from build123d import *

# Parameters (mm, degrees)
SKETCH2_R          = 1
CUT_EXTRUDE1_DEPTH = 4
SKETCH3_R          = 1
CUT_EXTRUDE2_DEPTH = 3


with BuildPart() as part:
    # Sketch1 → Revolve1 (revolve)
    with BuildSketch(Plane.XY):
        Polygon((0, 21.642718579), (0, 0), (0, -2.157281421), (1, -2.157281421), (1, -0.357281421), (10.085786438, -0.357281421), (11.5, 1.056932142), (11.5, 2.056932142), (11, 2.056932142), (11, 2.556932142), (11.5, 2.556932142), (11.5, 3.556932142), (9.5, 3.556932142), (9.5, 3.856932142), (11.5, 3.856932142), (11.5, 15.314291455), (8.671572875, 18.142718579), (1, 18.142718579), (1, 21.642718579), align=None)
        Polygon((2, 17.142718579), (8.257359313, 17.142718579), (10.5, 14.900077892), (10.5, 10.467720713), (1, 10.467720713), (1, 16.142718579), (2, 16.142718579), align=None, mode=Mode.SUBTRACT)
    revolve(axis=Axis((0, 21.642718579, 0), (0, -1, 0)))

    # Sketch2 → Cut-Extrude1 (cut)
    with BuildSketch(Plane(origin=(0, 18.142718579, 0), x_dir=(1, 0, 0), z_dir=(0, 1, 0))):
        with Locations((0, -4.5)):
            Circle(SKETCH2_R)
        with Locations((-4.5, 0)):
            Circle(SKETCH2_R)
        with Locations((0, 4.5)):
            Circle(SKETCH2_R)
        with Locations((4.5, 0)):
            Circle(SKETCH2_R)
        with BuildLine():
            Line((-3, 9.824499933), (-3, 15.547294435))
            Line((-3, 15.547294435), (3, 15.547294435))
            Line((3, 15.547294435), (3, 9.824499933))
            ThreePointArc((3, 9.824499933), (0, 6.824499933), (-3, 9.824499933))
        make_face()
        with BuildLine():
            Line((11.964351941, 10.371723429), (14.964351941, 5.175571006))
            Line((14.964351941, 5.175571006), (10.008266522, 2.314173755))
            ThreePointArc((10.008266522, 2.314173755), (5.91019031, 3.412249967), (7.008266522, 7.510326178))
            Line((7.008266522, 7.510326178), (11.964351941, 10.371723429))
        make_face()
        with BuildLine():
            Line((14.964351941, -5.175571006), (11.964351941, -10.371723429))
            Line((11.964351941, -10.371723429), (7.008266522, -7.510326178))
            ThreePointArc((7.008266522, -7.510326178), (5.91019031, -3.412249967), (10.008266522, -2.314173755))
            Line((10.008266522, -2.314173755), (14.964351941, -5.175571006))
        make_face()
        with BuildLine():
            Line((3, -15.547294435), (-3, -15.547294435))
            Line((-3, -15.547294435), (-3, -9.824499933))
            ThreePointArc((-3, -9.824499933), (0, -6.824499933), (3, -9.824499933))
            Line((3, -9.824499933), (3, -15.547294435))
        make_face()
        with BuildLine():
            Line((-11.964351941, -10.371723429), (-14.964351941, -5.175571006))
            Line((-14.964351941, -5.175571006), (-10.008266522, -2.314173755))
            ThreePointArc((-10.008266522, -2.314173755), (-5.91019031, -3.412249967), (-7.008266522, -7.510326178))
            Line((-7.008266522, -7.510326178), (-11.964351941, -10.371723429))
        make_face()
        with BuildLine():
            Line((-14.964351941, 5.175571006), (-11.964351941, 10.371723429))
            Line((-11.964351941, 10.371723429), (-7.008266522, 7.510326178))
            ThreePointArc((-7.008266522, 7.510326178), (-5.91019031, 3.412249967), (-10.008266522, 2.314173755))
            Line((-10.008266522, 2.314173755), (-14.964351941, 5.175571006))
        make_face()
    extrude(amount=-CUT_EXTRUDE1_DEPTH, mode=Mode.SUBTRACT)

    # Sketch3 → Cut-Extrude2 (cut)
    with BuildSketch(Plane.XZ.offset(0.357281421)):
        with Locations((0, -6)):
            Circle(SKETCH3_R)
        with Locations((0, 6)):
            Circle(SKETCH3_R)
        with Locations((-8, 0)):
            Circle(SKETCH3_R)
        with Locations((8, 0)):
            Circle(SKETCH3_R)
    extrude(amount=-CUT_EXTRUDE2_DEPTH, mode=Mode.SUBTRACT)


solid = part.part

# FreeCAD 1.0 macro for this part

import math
import FreeCAD as App
import Part
import Sketcher
from FreeCAD import Vector
Q = App.Units.Quantity

doc = App.newDocument("Part")
params = doc.addObject("Spreadsheet::Sheet", "Params")
for row, (alias, value) in enumerate([
    ("sketch1_width", "1 mm"),
    ("sketch1_width2", "2 mm"),
    ("sketch1_length", "2 mm"),
    ("sketch1_length2", "4 mm"),
    ("sketch1_width3", "0.5 mm"),
    ("revolution_angle", "360 deg"),
    ("sketch2_diameter", "2 mm"),
    ("sketch2_radius", "3 mm"),
    ("pocket1_length", "4 mm"),
    ("sketch3_diameter", "2 mm"),
    ("pocket2_length", "3 mm"),
], start=1):
    params.set(f"A{row}", alias)
    params.set(f"B{row}", "=" + value)
    params.setAlias(f"B{row}", alias)

body = doc.addObject("PartDesign::Body", "Body")

# Sketch on XY plane
sketch1 = body.newObject("Sketcher::SketchObject", "Sketch")
sketch1.AttachmentSupport = (doc.getObject("XY_Plane"), [""])
sketch1.MapMode = "FlatFace"
sketch1.addGeometry([
    Part.LineSegment(Vector(0, 21.64, 0), Vector(0, -2.16, 0)),  # 0
    Part.LineSegment(Vector(0, -2.16, 0), Vector(1, -2.16, 0)),  # 1
    Part.LineSegment(Vector(1, -2.16, 0), Vector(1, -0.36, 0)),  # 2
    Part.LineSegment(Vector(1, -0.36, 0), Vector(10.09, -0.36, 0)),  # 3
    Part.LineSegment(Vector(10.09, -0.36, 0), Vector(11.5, 1.06, 0)),  # 4
    Part.LineSegment(Vector(11.5, 1.06, 0), Vector(11.5, 2.06, 0)),  # 5
    Part.LineSegment(Vector(11.5, 2.06, 0), Vector(11, 2.06, 0)),  # 6
    Part.LineSegment(Vector(11, 2.06, 0), Vector(11, 2.56, 0)),  # 7
    Part.LineSegment(Vector(11, 2.56, 0), Vector(11.5, 2.56, 0)),  # 8
    Part.LineSegment(Vector(11.5, 2.56, 0), Vector(11.5, 3.56, 0)),  # 9
    Part.LineSegment(Vector(11.5, 3.56, 0), Vector(9.5, 3.56, 0)),  # 10
    Part.LineSegment(Vector(9.5, 3.56, 0), Vector(9.5, 3.86, 0)),  # 11
    Part.LineSegment(Vector(9.5, 3.86, 0), Vector(11.5, 3.86, 0)),  # 12
    Part.LineSegment(Vector(11.5, 3.86, 0), Vector(11.5, 15.31, 0)),  # 13
    Part.LineSegment(Vector(11.5, 15.31, 0), Vector(8.67, 18.14, 0)),  # 14
    Part.LineSegment(Vector(8.67, 18.14, 0), Vector(1, 18.14, 0)),  # 15
    Part.LineSegment(Vector(1, 18.14, 0), Vector(1, 21.64, 0)),  # 16
    Part.LineSegment(Vector(1, 21.64, 0), Vector(0, 21.64, 0)),  # 17
    Part.LineSegment(Vector(2, 16.14, 0), Vector(2, 17.14, 0)),  # 18
    Part.LineSegment(Vector(2, 17.14, 0), Vector(8.26, 17.14, 0)),  # 19
    Part.LineSegment(Vector(8.26, 17.14, 0), Vector(10.5, 14.9, 0)),  # 20
    Part.LineSegment(Vector(10.5, 14.9, 0), Vector(10.5, 10.47, 0)),  # 21
    Part.LineSegment(Vector(10.5, 10.47, 0), Vector(1, 10.47, 0)),  # 22
    Part.LineSegment(Vector(1, 10.47, 0), Vector(1, 16.14, 0)),  # 23
    Part.LineSegment(Vector(1, 16.14, 0), Vector(2, 16.14, 0)),  # 24
], False)
sketch1.addConstraint([
    Sketcher.Constraint("Coincident", 0, 2, 1, 1),
    Sketcher.Constraint("Coincident", 1, 2, 2, 1),
    Sketcher.Constraint("Coincident", 2, 2, 3, 1),
    Sketcher.Constraint("Coincident", 3, 2, 4, 1),
    Sketcher.Constraint("Coincident", 4, 2, 5, 1),
    Sketcher.Constraint("Coincident", 5, 2, 6, 1),
    Sketcher.Constraint("Coincident", 6, 2, 7, 1),
    Sketcher.Constraint("Coincident", 7, 2, 8, 1),
    Sketcher.Constraint("Coincident", 8, 2, 9, 1),
    Sketcher.Constraint("Coincident", 9, 2, 10, 1),
    Sketcher.Constraint("Coincident", 10, 2, 11, 1),
    Sketcher.Constraint("Coincident", 11, 2, 12, 1),
    Sketcher.Constraint("Coincident", 12, 2, 13, 1),
    Sketcher.Constraint("Coincident", 13, 2, 14, 1),
    Sketcher.Constraint("Coincident", 14, 2, 15, 1),
    Sketcher.Constraint("Coincident", 15, 2, 16, 1),
    Sketcher.Constraint("Coincident", 16, 2, 17, 1),
    Sketcher.Constraint("Coincident", 17, 2, 0, 1),
    Sketcher.Constraint("Coincident", 18, 2, 19, 1),
    Sketcher.Constraint("Coincident", 19, 2, 20, 1),
    Sketcher.Constraint("Coincident", 20, 2, 21, 1),
    Sketcher.Constraint("Coincident", 21, 2, 22, 1),
    Sketcher.Constraint("Coincident", 22, 2, 23, 1),
    Sketcher.Constraint("Coincident", 23, 2, 24, 1),
    Sketcher.Constraint("Coincident", 24, 2, 18, 1),
    Sketcher.Constraint("Vertical", 0),
    Sketcher.Constraint("Horizontal", 1),
    Sketcher.Constraint("Vertical", 2),
    Sketcher.Constraint("Horizontal", 3),
    Sketcher.Constraint("Vertical", 5),
    Sketcher.Constraint("Horizontal", 6),
    Sketcher.Constraint("Vertical", 7),
    Sketcher.Constraint("Horizontal", 8),
    Sketcher.Constraint("Vertical", 9),
    Sketcher.Constraint("Horizontal", 10),
    Sketcher.Constraint("Vertical", 11),
    Sketcher.Constraint("Horizontal", 12),
    Sketcher.Constraint("Vertical", 13),
    Sketcher.Constraint("Horizontal", 15),
    Sketcher.Constraint("Vertical", 16),
    Sketcher.Constraint("Horizontal", 17),
    Sketcher.Constraint("Vertical", 18),
    Sketcher.Constraint("Horizontal", 19),
    Sketcher.Constraint("Vertical", 21),
    Sketcher.Constraint("Horizontal", 22),
    Sketcher.Constraint("Vertical", 23),
    Sketcher.Constraint("Horizontal", 24),
    Sketcher.Constraint("PointOnObject", 0, 2, -2),
    Sketcher.Constraint("Perpendicular", 4, 14),
    Sketcher.Constraint("Parallel", 14, 20),
    Sketcher.Constraint("Vertical", 5, 2, 8, 2),
    Sketcher.Constraint("Vertical", 9, 2, 12, 2),
    Sketcher.Constraint("Vertical", 2, 2, 15, 2),
    Sketcher.Constraint("Vertical", 16, 2, 22, 2),
    Sketcher.Constraint("Equal", 17, 24),
    Sketcher.Constraint("Equal", 24, 5),
    Sketcher.Constraint("Equal", 8, 7),
    Sketcher.Constraint("Equal", 5, 9),
    Sketcher.Constraint("Equal", 9, 18),
    Sketcher.Constraint("DistanceX", 1, 1, 1, 2, Q("1 mm")),
    Sketcher.Constraint("DistanceX", 10, 2, 10, 1, Q("2 mm")),
    Sketcher.Constraint("Angle", 4, Q("45 deg")),
    Sketcher.Constraint("Distance", 4, Q("2 mm")),
    Sketcher.Constraint("Distance", 14, Q("4 mm")),
    Sketcher.Constraint("DistanceX", 6, 2, 6, 1, Q("0.5 mm")),
    Sketcher.Constraint("DistanceX", 22, 2, 22, 1, Q("9.5 mm")),
    Sketcher.Constraint("DistanceY", 0, 2, 0, 1, Q("23.8 mm")),
    Sketcher.Constraint("DistanceY", 2, 1, 2, 2, Q("1.8 mm")),
    Sketcher.Constraint("DistanceY", 11, 1, 11, 2, Q("0.3 mm")),
    Sketcher.Constraint("DistanceY", 16, 1, 16, 2, Q("3.5 mm")),
    Sketcher.Constraint("DistanceX", -1, 1, 6, 2, Q("11 mm")),
    Sketcher.Constraint("DistanceY", 18, 2, 15, 2, Q("1 mm")),
    Sketcher.Constraint("DistanceX", 19, 1, 19, 2, Q("6.257359 mm")),
    Sketcher.Constraint("DistanceY", 21, 2, 21, 1, Q("4.432357 mm")),
    Sketcher.Constraint("DistanceY", 0, 2, -1, 1, Q("2.157281 mm")),
])
sketch1.setExpression("Constraints[59]", "Params.sketch1_width")
sketch1.setExpression("Constraints[60]", "Params.sketch1_width2")
sketch1.setExpression("Constraints[62]", "Params.sketch1_length")
sketch1.setExpression("Constraints[63]", "Params.sketch1_length2")
sketch1.setExpression("Constraints[64]", "Params.sketch1_width3")
revolution = body.newObject("PartDesign::Revolution", "Revolution")
revolution.Profile = sketch1
revolution.ReferenceAxis = (sketch1, ["V_Axis"])
revolution.setExpression("Angle", "Params.revolution_angle")

# Sketch on XZ plane
sketch2 = body.newObject("Sketcher::SketchObject", "Sketch001")
sketch2.AttachmentSupport = (doc.getObject("XZ_Plane"), [""])
sketch2.MapMode = "FlatFace"
sketch2.AttachmentOffset = App.Placement(Vector(0, 0, -18.142719), App.Rotation())
sketch2.addGeometry([
    Part.Circle(Vector(0, 4.5, 0), Vector(0, 0, 1), 1),  # 0
    Part.Circle(Vector(-4.5, 0, 0), Vector(0, 0, 1), 1),  # 1
    Part.Circle(Vector(0, -4.5, 0), Vector(0, 0, 1), 1),  # 2
    Part.Circle(Vector(4.5, 0, 0), Vector(0, 0, 1), 1),  # 3
    Part.LineSegment(Vector(-3, -15.5, 0), Vector(-3, -9.8, 0)),  # 4
    Part.ArcOfCircle(Part.Circle(Vector(0, -9.8, 0), Vector(0, 0, 1), 3), math.radians(0), math.radians(180)),  # 5
    Part.LineSegment(Vector(3, -9.8, 0), Vector(3, -15.5, 0)),  # 6
    Part.LineSegment(Vector(3, -15.5, 0), Vector(-3, -15.5, 0)),  # 7
    Part.LineSegment(Vector(15, -5.2, 0), Vector(12, -10.4, 0)),  # 8
    Part.LineSegment(Vector(12, -10.4, 0), Vector(7, -7.5, 0)),  # 9
    Part.ArcOfCircle(Part.Circle(Vector(8.5, -4.9, 0), Vector(0, 0, 1), 3), math.radians(60), math.radians(240)),  # 10
    Part.LineSegment(Vector(10, -2.3, 0), Vector(15, -5.2, 0)),  # 11
    Part.LineSegment(Vector(12, 10.4, 0), Vector(15, 5.2, 0)),  # 12
    Part.LineSegment(Vector(15, 5.2, 0), Vector(10, 2.3, 0)),  # 13
    Part.ArcOfCircle(Part.Circle(Vector(8.5, 4.9, 0), Vector(0, 0, 1), 3), math.radians(120), math.radians(300)),  # 14
    Part.LineSegment(Vector(7, 7.5, 0), Vector(12, 10.4, 0)),  # 15
    Part.LineSegment(Vector(-3, 15.5, 0), Vector(3, 15.5, 0)),  # 16
    Part.LineSegment(Vector(3, 15.5, 0), Vector(3, 9.8, 0)),  # 17
    Part.ArcOfCircle(Part.Circle(Vector(0, 9.8, 0), Vector(0, 0, 1), 3), math.radians(180), math.radians(360)),  # 18
    Part.LineSegment(Vector(-3, 9.8, 0), Vector(-3, 15.5, 0)),  # 19
    Part.LineSegment(Vector(-15, 5.2, 0), Vector(-12, 10.4, 0)),  # 20
    Part.LineSegment(Vector(-12, 10.4, 0), Vector(-7, 7.5, 0)),  # 21
    Part.ArcOfCircle(Part.Circle(Vector(-8.5, 4.9, 0), Vector(0, 0, 1), 3), math.radians(-120), math.radians(60)),  # 22
    Part.LineSegment(Vector(-10, 2.3, 0), Vector(-15, 5.2, 0)),  # 23
    Part.LineSegment(Vector(-12, -10.4, 0), Vector(-15, -5.2, 0)),  # 24
    Part.LineSegment(Vector(-15, -5.2, 0), Vector(-10, -2.3, 0)),  # 25
    Part.ArcOfCircle(Part.Circle(Vector(-8.5, -4.9, 0), Vector(0, 0, 1), 3), math.radians(-60), math.radians(120)),  # 26
    Part.LineSegment(Vector(-7, -7.5, 0), Vector(-12, -10.4, 0)),  # 27
], False)
sketch2.addConstraint([
    Sketcher.Constraint("Tangent", 4, 2, 5, 2),
    Sketcher.Constraint("Tangent", 5, 1, 6, 1),
    Sketcher.Constraint("Coincident", 6, 2, 7, 1),
    Sketcher.Constraint("Coincident", 7, 2, 4, 1),
    Sketcher.Constraint("Coincident", 8, 2, 9, 1),
    Sketcher.Constraint("Tangent", 9, 2, 10, 2),
    Sketcher.Constraint("Tangent", 10, 1, 11, 1),
    Sketcher.Constraint("Coincident", 11, 2, 8, 1),
    Sketcher.Constraint("Coincident", 12, 2, 13, 1),
    Sketcher.Constraint("Tangent", 13, 2, 14, 2),
    Sketcher.Constraint("Tangent", 14, 1, 15, 1),
    Sketcher.Constraint("Coincident", 15, 2, 12, 1),
    Sketcher.Constraint("Coincident", 16, 2, 17, 1),
    Sketcher.Constraint("Tangent", 17, 2, 18, 2),
    Sketcher.Constraint("Tangent", 18, 1, 19, 1),
    Sketcher.Constraint("Coincident", 19, 2, 16, 1),
    Sketcher.Constraint("Coincident", 20, 2, 21, 1),
    Sketcher.Constraint("Tangent", 21, 2, 22, 2),
    Sketcher.Constraint("Tangent", 22, 1, 23, 1),
    Sketcher.Constraint("Coincident", 23, 2, 20, 1),
    Sketcher.Constraint("Coincident", 24, 2, 25, 1),
    Sketcher.Constraint("Tangent", 25, 2, 26, 2),
    Sketcher.Constraint("Tangent", 26, 1, 27, 1),
    Sketcher.Constraint("Coincident", 27, 2, 24, 1),
    Sketcher.Constraint("Vertical", 4),
    Sketcher.Constraint("Vertical", 6),
    Sketcher.Constraint("Horizontal", 7),
    Sketcher.Constraint("Horizontal", 16),
    Sketcher.Constraint("Vertical", 17),
    Sketcher.Constraint("Vertical", 19),
    Sketcher.Constraint("Equal", 0, 1),
    Sketcher.Constraint("Equal", 1, 2),
    Sketcher.Constraint("Equal", 2, 3),
    Sketcher.Constraint("Equal", 5, 10),
    Sketcher.Constraint("Equal", 10, 14),
    Sketcher.Constraint("Equal", 14, 18),
    Sketcher.Constraint("Equal", 18, 22),
    Sketcher.Constraint("Equal", 22, 26),
    Sketcher.Constraint("Symmetric", 0, 3, 2, 3, -1, 1),
    Sketcher.Constraint("Symmetric", 1, 3, 3, 3, -1, 1),
    Sketcher.Constraint("Symmetric", 5, 3, 18, 3, -1, 1),
    Sketcher.Constraint("Symmetric", 10, 3, 22, 3, -1, 1),
    Sketcher.Constraint("Symmetric", 14, 3, 26, 3, -1, 1),
    Sketcher.Constraint("Symmetric", 8, 2, 20, 2, -1, 1),
    Sketcher.Constraint("Symmetric", 11, 2, 23, 2, -1, 1),
    Sketcher.Constraint("Symmetric", 12, 2, 24, 2, -1, 1),
    Sketcher.Constraint("Symmetric", 15, 2, 27, 2, -1, 1),
    Sketcher.Constraint("Symmetric", 14, 3, 22, 3, -2),
    Sketcher.Constraint("Symmetric", 15, 2, 20, 2, -2),
    Sketcher.Constraint("Symmetric", 12, 2, 23, 2, -2),
    Sketcher.Constraint("Symmetric", 6, 2, 16, 2, -1),
    Sketcher.Constraint("PointOnObject", 0, 3, -2),
    Sketcher.Constraint("PointOnObject", 1, 3, -1),
    Sketcher.Constraint("Perpendicular", 8, 9),
    Sketcher.Constraint("Parallel", 9, 11),
    Sketcher.Constraint("Diameter", 0, Q("2 mm")),
    Sketcher.Constraint("Radius", 5, Q("3 mm")),
    Sketcher.Constraint("Angle", 8, Q("-120 deg")),
    Sketcher.Constraint("DistanceY", 2, 3, 0, 3, Q("9 mm")),
    Sketcher.Constraint("DistanceX", 1, 3, 3, 3, Q("9 mm")),
    Sketcher.Constraint("DistanceY", 5, 3, -1, 1, Q("9.8245 mm")),
    Sketcher.Constraint("DistanceY", 10, 3, 14, 3, Q("9.8245 mm")),
    Sketcher.Constraint("DistanceY", 4, 1, 4, 2, Q("5.722795 mm")),
    Sketcher.Constraint("DistanceX", -1, 1, 8, 2, Q("11.964352 mm")),
    Sketcher.Constraint("DistanceY", 11, 2, -1, 1, Q("5.175571 mm")),
])
sketch2.setExpression("Constraints[55]", "Params.sketch2_diameter")
sketch2.setExpression("Constraints[56]", "Params.sketch2_radius")
pocket1 = body.newObject("PartDesign::Pocket", "Pocket")
pocket1.Profile = sketch2
pocket1.setExpression("Length", "Params.pocket1_length")
pocket1.Reversed = True

# Sketch on XZ plane
sketch3 = body.newObject("Sketcher::SketchObject", "Sketch002")
sketch3.AttachmentSupport = (doc.getObject("XZ_Plane"), [""])
sketch3.MapMode = "FlatFace"
sketch3.AttachmentOffset = App.Placement(Vector(0, 0, 0.357281), App.Rotation())
sketch3.addGeometry([
    Part.Circle(Vector(0, -6, 0), Vector(0, 0, 1), 1),
    Part.Circle(Vector(0, 6, 0), Vector(0, 0, 1), 1),
    Part.Circle(Vector(-8, 0, 0), Vector(0, 0, 1), 1),
    Part.Circle(Vector(8, 0, 0), Vector(0, 0, 1), 1),
], False)
sketch3.addConstraint([
    Sketcher.Constraint("Equal", 0, 1),
    Sketcher.Constraint("Equal", 1, 2),
    Sketcher.Constraint("Equal", 2, 3),
    Sketcher.Constraint("Symmetric", 0, 3, 1, 3, -1, 1),
    Sketcher.Constraint("Symmetric", 2, 3, 3, 3, -1, 1),
    Sketcher.Constraint("PointOnObject", 0, 3, -2),
    Sketcher.Constraint("PointOnObject", 2, 3, -1),
    Sketcher.Constraint("Diameter", 0, Q("2 mm")),
    Sketcher.Constraint("DistanceY", 0, 3, -1, 1, Q("6 mm")),
    Sketcher.Constraint("DistanceX", 2, 3, -1, 1, Q("8 mm")),
])
sketch3.setExpression("Constraints[7]", "Params.sketch3_diameter")
pocket2 = body.newObject("PartDesign::Pocket", "Pocket001")
pocket2.Profile = sketch3
pocket2.setExpression("Length", "Params.pocket2_length")

doc.recompute()
